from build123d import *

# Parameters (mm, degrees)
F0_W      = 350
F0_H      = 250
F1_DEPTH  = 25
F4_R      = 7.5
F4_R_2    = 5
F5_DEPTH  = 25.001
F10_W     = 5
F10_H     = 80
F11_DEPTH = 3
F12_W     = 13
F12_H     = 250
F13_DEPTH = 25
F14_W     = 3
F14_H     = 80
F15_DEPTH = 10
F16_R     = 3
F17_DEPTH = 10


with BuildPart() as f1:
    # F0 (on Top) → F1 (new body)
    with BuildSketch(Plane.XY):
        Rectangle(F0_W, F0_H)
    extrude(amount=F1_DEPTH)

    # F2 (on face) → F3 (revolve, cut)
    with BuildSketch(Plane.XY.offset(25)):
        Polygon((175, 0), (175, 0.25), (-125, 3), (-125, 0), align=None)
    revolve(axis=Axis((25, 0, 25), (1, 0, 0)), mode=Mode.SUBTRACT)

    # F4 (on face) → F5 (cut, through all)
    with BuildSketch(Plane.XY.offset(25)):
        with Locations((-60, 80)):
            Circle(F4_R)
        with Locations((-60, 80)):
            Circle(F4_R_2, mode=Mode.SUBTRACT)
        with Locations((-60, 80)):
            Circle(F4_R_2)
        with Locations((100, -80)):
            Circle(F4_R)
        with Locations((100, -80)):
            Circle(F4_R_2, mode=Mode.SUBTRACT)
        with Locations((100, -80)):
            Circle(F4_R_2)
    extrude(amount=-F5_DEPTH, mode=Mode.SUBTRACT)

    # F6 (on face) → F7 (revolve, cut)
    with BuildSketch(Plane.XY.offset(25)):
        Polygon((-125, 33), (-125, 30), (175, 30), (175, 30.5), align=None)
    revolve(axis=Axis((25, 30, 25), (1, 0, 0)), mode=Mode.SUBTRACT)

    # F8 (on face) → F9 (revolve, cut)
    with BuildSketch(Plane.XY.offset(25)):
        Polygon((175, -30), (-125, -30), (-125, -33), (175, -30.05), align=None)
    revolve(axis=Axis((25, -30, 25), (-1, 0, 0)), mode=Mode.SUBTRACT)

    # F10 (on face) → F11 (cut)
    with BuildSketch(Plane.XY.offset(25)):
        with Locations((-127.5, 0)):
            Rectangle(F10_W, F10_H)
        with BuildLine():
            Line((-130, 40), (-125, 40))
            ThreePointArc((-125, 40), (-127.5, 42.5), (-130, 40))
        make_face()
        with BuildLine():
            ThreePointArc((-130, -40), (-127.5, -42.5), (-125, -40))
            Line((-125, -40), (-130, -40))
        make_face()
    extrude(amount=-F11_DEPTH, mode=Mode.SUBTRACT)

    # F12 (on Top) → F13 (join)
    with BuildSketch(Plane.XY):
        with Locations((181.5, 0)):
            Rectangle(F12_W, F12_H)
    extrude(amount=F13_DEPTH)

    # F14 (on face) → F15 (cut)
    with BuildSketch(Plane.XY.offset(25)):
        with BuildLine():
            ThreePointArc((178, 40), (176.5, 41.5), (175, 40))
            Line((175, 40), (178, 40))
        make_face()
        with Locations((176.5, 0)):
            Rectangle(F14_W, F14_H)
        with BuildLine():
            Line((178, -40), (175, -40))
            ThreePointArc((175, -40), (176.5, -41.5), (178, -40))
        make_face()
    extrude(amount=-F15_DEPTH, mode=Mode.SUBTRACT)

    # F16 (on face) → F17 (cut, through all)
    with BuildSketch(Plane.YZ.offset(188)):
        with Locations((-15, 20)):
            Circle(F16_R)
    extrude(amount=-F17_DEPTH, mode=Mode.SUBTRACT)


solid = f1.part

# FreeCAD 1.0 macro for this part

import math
import FreeCAD as App
import Part
import Sketcher

V = App.Vector
Q = App.Units.Quantity

doc = App.newDocument("Part")
params = doc.addObject("Spreadsheet::Sheet", "Params")
for row, (alias, value) in enumerate([
    ("sketch1_width", "350 mm"),
    ("sketch1_height", "250 mm"),
    ("pad1_length", "25 mm"),
    ("sketch2_width", "300 mm"),
    ("sketch2_height", "3 mm"),
    ("sketch2_height2", "0.25 mm"),
    ("groove_angle", "360 deg"),
    ("sketch3_diameter", "15 mm"),
    ("sketch4_width", "300 mm"),
    ("sketch4_height", "3 mm"),
    ("sketch4_height2", "0.5 mm"),
    ("groove2_angle", "360 deg"),
    ("sketch5_width", "300 mm"),
    ("sketch5_height", "3 mm"),
    ("sketch5_height2", "0.05 mm"),
    ("groove3_angle", "360 deg"),
    ("sketch6_radius", "2.5 mm"),
    ("sketch6_height", "80 mm"),
    ("pocket2_length", "3 mm"),
    ("sketch7_width", "13 mm"),
    ("sketch7_height", "250 mm"),
    ("pad2_length", "25 mm"),
    ("sketch8_radius", "1.5 mm"),
    ("sketch8_height", "80 mm"),
    ("pocket3_length", "10 mm"),
    ("sketch9_diameter", "6 mm"),
    ("pocket4_length", "10 mm"),
], start=1):
    params.set(f"A{row}", alias)
    params.set(f"B{row}", "=" + value)
    params.setAlias(f"B{row}", alias)

body = doc.addObject("PartDesign::Body", "Body")

sketch1 = body.newObject("Sketcher::SketchObject", "Sketch")
sketch1.AttachmentSupport = (doc.getObject("XY_Plane"), [""])
sketch1.MapMode = "FlatFace"
sketch1.addGeometry(Part.LineSegment(V(-175, 125, 0), V(-175, -125, 0)), False)
sketch1.addGeometry(Part.LineSegment(V(-175, -125, 0), V(175, -125, 0)), False)
sketch1.addGeometry(Part.LineSegment(V(175, -125, 0), V(175, 125, 0)), False)
sketch1.addGeometry(Part.LineSegment(V(175, 125, 0), V(-175, 125, 0)), False)
sketch1.addConstraint(Sketcher.Constraint("Coincident", 0, 2, 1, 1))
sketch1.addConstraint(Sketcher.Constraint("Coincident", 1, 2, 2, 1))
sketch1.addConstraint(Sketcher.Constraint("Coincident", 2, 2, 3, 1))
sketch1.addConstraint(Sketcher.Constraint("Coincident", 3, 2, 0, 1))
sketch1.addConstraint(Sketcher.Constraint("Vertical", 0))
sketch1.addConstraint(Sketcher.Constraint("Horizontal", 1))
sketch1.addConstraint(Sketcher.Constraint("Vertical", 2))
sketch1.addConstraint(Sketcher.Constraint("Horizontal", 3))
sketch1.addConstraint(Sketcher.Constraint("Symmetric", 0, 2, 2, 2, -1, 1))
sketch1.addConstraint(Sketcher.Constraint("DistanceX", 1, 1, 1, 2, Q("350 mm")))
sketch1.addConstraint(Sketcher.Constraint("DistanceY", 0, 2, 0, 1, Q("250 mm")))
sketch1.setExpression("Constraints[9]", "Params.sketch1_width")
sketch1.setExpression("Constraints[10]", "Params.sketch1_height")
pad1 = body.newObject("PartDesign::Pad", "Pad")
pad1.Profile = sketch1
pad1.setExpression("Length", "Params.pad1_length")

sketch2 = body.newObject("Sketcher::SketchObject", "Sketch001")
sketch2.AttachmentSupport = (doc.getObject("XY_Plane"), [""])
sketch2.MapMode = "FlatFace"
sketch2.AttachmentOffset = App.Placement(V(0, 0, 25), App.Rotation())
sketch2.addGeometry(Part.LineSegment(V(175, 0, 0), V(175, 0.25, 0)), False)
sketch2.addGeometry(Part.LineSegment(V(175, 0.25, 0), V(-125, 3, 0)), False)
sketch2.addGeometry(Part.LineSegment(V(-125, 3, 0), V(-125, 0, 0)), False)
sketch2.addGeometry(Part.LineSegment(V(-125, 0, 0), V(175, 0, 0)), False)
sketch2.addConstraint(Sketcher.Constraint("Coincident", 0, 2, 1, 1))
sketch2.addConstraint(Sketcher.Constraint("Coincident", 1, 2, 2, 1))
sketch2.addConstraint(Sketcher.Constraint("Coincident", 2, 2, 3, 1))
sketch2.addConstraint(Sketcher.Constraint("Coincident", 3, 2, 0, 1))
sketch2.addConstraint(Sketcher.Constraint("Vertical", 0))
sketch2.addConstraint(Sketcher.Constraint("Vertical", 2))
sketch2.addConstraint(Sketcher.Constraint("Horizontal", 3))
sketch2.addConstraint(Sketcher.Constraint("PointOnObject", 2, 2, -1))
sketch2.addConstraint(Sketcher.Constraint("DistanceX", 3, 1, 3, 2, Q("300 mm")))
sketch2.addConstraint(Sketcher.Constraint("DistanceY", 2, 2, 2, 1, Q("3 mm")))
sketch2.addConstraint(Sketcher.Constraint("DistanceX", -1, 1, 0, 2, Q("175 mm")))
sketch2.addConstraint(Sketcher.Constraint("DistanceY", 0, 1, 0, 2, Q("0.25 mm")))
sketch2.setExpression("Constraints[8]", "Params.sketch2_width")
sketch2.setExpression("Constraints[9]", "Params.sketch2_height")
sketch2.setExpression("Constraints[11]", "Params.sketch2_height2")
groove = body.newObject("PartDesign::Groove", "Groove")
groove.Profile = sketch2
groove.ReferenceAxis = (sketch2, ["H_Axis"])
groove.setExpression("Angle", "Params.groove_angle")

sketch3 = body.newObject("Sketcher::SketchObject", "Sketch002")
sketch3.AttachmentSupport = (doc.getObject("XY_Plane"), [""])
sketch3.MapMode = "FlatFace"
sketch3.AttachmentOffset = App.Placement(V(0, 0, 25), App.Rotation())
sketch3.addGeometry(Part.Circle(V(-60, 80, 0), V(0, 0, 1), 7.5), False)
sketch3.addGeometry(Part.Circle(V(100, -80, 0), V(0, 0, 1), 7.5), False)
sketch3.addConstraint(Sketcher.Constraint("Equal", 0, 1))
sketch3.addConstraint(Sketcher.Constraint("Diameter", 0, Q("15 mm")))
sketch3.addConstraint(Sketcher.Constraint("DistanceX", 0, 3, -1, 1, Q("60 mm")))
sketch3.addConstraint(Sketcher.Constraint("DistanceY", -1, 1, 0, 3, Q("80 mm")))
sketch3.addConstraint(Sketcher.Constraint("DistanceX", -1, 1, 1, 3, Q("100 mm")))
sketch3.addConstraint(Sketcher.Constraint("DistanceY", 1, 3, -1, 1, Q("80 mm")))
sketch3.setExpression("Constraints[1]", "Params.sketch3_diameter")
pocket1 = body.newObject("PartDesign::Pocket", "Pocket")
pocket1.Profile = sketch3
pocket1.Type = "ThroughAll"

sketch4 = body.newObject("Sketcher::SketchObject", "Sketch003")
sketch4.AttachmentSupport = (doc.getObject("XY_Plane"), [""])
sketch4.MapMode = "FlatFace"
sketch4.AttachmentOffset = App.Placement(V(0, 0, 25), App.Rotation())
sketch4.addGeometry(Part.LineSegment(V(-125, 33, 0), V(-125, 30, 0)), False)
sketch4.addGeometry(Part.LineSegment(V(-125, 30, 0), V(175, 30, 0)), False)
sketch4.addGeometry(Part.LineSegment(V(175, 30, 0), V(175, 30.5, 0)), False)
sketch4.addGeometry(Part.LineSegment(V(175, 30.5, 0), V(-125, 33, 0)), False)
sketch4.addGeometry(Part.LineSegment(V(-125, 30, 0), V(175, 30, 0)), True)
sketch4.addConstraint(Sketcher.Constraint("Coincident", 0, 2, 1, 1))
sketch4.addConstraint(Sketcher.Constraint("Coincident", 1, 2, 2, 1))
sketch4.addConstraint(Sketcher.Constraint("Coincident", 2, 2, 3, 1))
sketch4.addConstraint(Sketcher.Constraint("Coincident", 3, 2, 0, 1))
sketch4.addConstraint(Sketcher.Constraint("Vertical", 0))
sketch4.addConstraint(Sketcher.Constraint("Horizontal", 1))
sketch4.addConstraint(Sketcher.Constraint("Vertical", 2))
sketch4.addConstraint(Sketcher.Constraint("Horizontal", 4))
sketch4.addConstraint(Sketcher.Constraint("Coincident", 4, 1, 0, 2))
sketch4.addConstraint(Sketcher.Constraint("Vertical", 2, 2, 4, 2))
sketch4.addConstraint(Sketcher.Constraint("DistanceX", 1, 1, 1, 2, Q("300 mm")))
sketch4.addConstraint(Sketcher.Constraint("DistanceY", 0, 2, 0, 1, Q("3 mm")))
sketch4.addConstraint(Sketcher.Constraint("DistanceY", 2, 1, 2, 2, Q("0.5 mm")))
sketch4.addConstraint(Sketcher.Constraint("DistanceX", 0, 2, -1, 1, Q("125 mm")))
sketch4.addConstraint(Sketcher.Constraint("DistanceY", -1, 1, 0, 2, Q("30 mm")))
sketch4.setExpression("Constraints[10]", "Params.sketch4_width")
sketch4.setExpression("Constraints[11]", "Params.sketch4_height")
sketch4.setExpression("Constraints[12]", "Params.sketch4_height2")
groove2 = body.newObject("PartDesign::Groove", "Groove001")
groove2.Profile = sketch4
groove2.ReferenceAxis = (sketch4, ["Axis0"])
groove2.setExpression("Angle", "Params.groove2_angle")

sketch5 = body.newObject("Sketcher::SketchObject", "Sketch004")
sketch5.AttachmentSupport = (doc.getObject("XY_Plane"), [""])
sketch5.MapMode = "FlatFace"
sketch5.AttachmentOffset = App.Placement(V(0, 0, 25), App.Rotation())
sketch5.addGeometry(Part.LineSegment(V(175, -30, 0), V(-125, -30, 0)), False)
sketch5.addGeometry(Part.LineSegment(V(-125, -30, 0), V(-125, -33, 0)), False)
sketch5.addGeometry(Part.LineSegment(V(-125, -33, 0), V(175, -30.05, 0)), False)
sketch5.addGeometry(Part.LineSegment(V(175, -30.05, 0), V(175, -30, 0)), False)
sketch5.addGeometry(Part.LineSegment(V(175, -30, 0), V(-125, -30, 0)), True)
sketch5.addConstraint(Sketcher.Constraint("Coincident", 0, 2, 1, 1))
sketch5.addConstraint(Sketcher.Constraint("Coincident", 1, 2, 2, 1))
sketch5.addConstraint(Sketcher.Constraint("Coincident", 2, 2, 3, 1))
sketch5.addConstraint(Sketcher.Constraint("Coincident", 3, 2, 0, 1))
sketch5.addConstraint(Sketcher.Constraint("Horizontal", 0))
sketch5.addConstraint(Sketcher.Constraint("Vertical", 1))
sketch5.addConstraint(Sketcher.Constraint("Vertical", 3))
sketch5.addConstraint(Sketcher.Constraint("Horizontal", 4))
sketch5.addConstraint(Sketcher.Constraint("Coincident", 4, 1, 3, 2))
sketch5.addConstraint(Sketcher.Constraint("Vertical", 1, 2, 4, 2))
sketch5.addConstraint(Sketcher.Constraint("DistanceX", 0, 2, 0, 1, Q("300 mm")))
sketch5.addConstraint(Sketcher.Constraint("DistanceY", 1, 2, 1, 1, Q("3 mm")))
sketch5.addConstraint(Sketcher.Constraint("DistanceX", 0, 2, -1, 1, Q("125 mm")))
sketch5.addConstraint(Sketcher.Constraint("DistanceY", 0, 2, -1, 1, Q("30 mm")))
sketch5.addConstraint(Sketcher.Constraint("DistanceY", 3, 1, 3, 2, Q("0.05 mm")))
sketch5.setExpression("Constraints[10]", "Params.sketch5_width")
sketch5.setExpression("Constraints[11]", "Params.sketch5_height")
sketch5.setExpression("Constraints[14]", "Params.sketch5_height2")
groove3 = body.newObject("PartDesign::Groove", "Groove002")
groove3.Profile = sketch5
groove3.ReferenceAxis = (sketch5, ["Axis0"])
groove3.setExpression("Angle", "Params.groove3_angle")

sketch6 = body.newObject("Sketcher::SketchObject", "Sketch005")
sketch6.AttachmentSupport = (doc.getObject("XY_Plane"), [""])
sketch6.MapMode = "FlatFace"
sketch6.AttachmentOffset = App.Placement(V(0, 0, 25), App.Rotation())
sketch6.addGeometry(Part.LineSegment(V(-130, 40, 0), V(-130, -40, 0)), False)
sketch6.addGeometry(Part.ArcOfCircle(Part.Circle(V(-127.5, -40, 0), V(0, 0, 1), 2.5), math.radians(180), math.radians(360)), False)
sketch6.addGeometry(Part.LineSegment(V(-125, -40, 0), V(-125, 40, 0)), False)
sketch6.addGeometry(Part.ArcOfCircle(Part.Circle(V(-127.5, 40, 0), V(0, 0, 1), 2.5), math.radians(0), math.radians(180)), False)
sketch6.addConstraint(Sketcher.Constraint("Tangent", 0, 2, 1, 1))
sketch6.addConstraint(Sketcher.Constraint("Tangent", 1, 2, 2, 1))
sketch6.addConstraint(Sketcher.Constraint("Tangent", 2, 2, 3, 1))
sketch6.addConstraint(Sketcher.Constraint("Tangent", 3, 2, 0, 1))
sketch6.addConstraint(Sketcher.Constraint("Vertical", 0))
sketch6.addConstraint(Sketcher.Constraint("Vertical", 2))
sketch6.addConstraint(Sketcher.Constraint("Radius", 1, Q("2.5 mm")))
sketch6.addConstraint(Sketcher.Constraint("DistanceY", 0, 2, 0, 1, Q("80 mm")))
sketch6.addConstraint(Sketcher.Constraint("DistanceY", 1, 3, -1, 1, Q("40 mm")))
sketch6.addConstraint(Sketcher.Constraint("DistanceX", 0, 2, -1, 1, Q("130 mm")))
sketch6.setExpression("Constraints[6]", "Params.sketch6_radius")
sketch6.setExpression("Constraints[7]", "Params.sketch6_height")
pocket2 = body.newObject("PartDesign::Pocket", "Pocket001")
pocket2.Profile = sketch6
pocket2.setExpression("Length", "Params.pocket2_length")

sketch7 = body.newObject("Sketcher::SketchObject", "Sketch006")
sketch7.AttachmentSupport = (doc.getObject("XY_Plane"), [""])
sketch7.MapMode = "FlatFace"
sketch7.addGeometry(Part.LineSegment(V(175, 125, 0), V(175, -125, 0)), False)
sketch7.addGeometry(Part.LineSegment(V(175, -125, 0), V(188, -125, 0)), False)
sketch7.addGeometry(Part.LineSegment(V(188, -125, 0), V(188, 125, 0)), False)
sketch7.addGeometry(Part.LineSegment(V(188, 125, 0), V(175, 125, 0)), False)
sketch7.addConstraint(Sketcher.Constraint("Coincident", 0, 2, 1, 1))
sketch7.addConstraint(Sketcher.Constraint("Coincident", 1, 2, 2, 1))
sketch7.addConstraint(Sketcher.Constraint("Coincident", 2, 2, 3, 1))
sketch7.addConstraint(Sketcher.Constraint("Coincident", 3, 2, 0, 1))
sketch7.addConstraint(Sketcher.Constraint("Vertical", 0))
sketch7.addConstraint(Sketcher.Constraint("Horizontal", 1))
sketch7.addConstraint(Sketcher.Constraint("Vertical", 2))
sketch7.addConstraint(Sketcher.Constraint("Horizontal", 3))
sketch7.addConstraint(Sketcher.Constraint("DistanceX", 1, 1, 1, 2, Q("13 mm")))
sketch7.addConstraint(Sketcher.Constraint("DistanceY", 0, 2, 0, 1, Q("250 mm")))
sketch7.addConstraint(Sketcher.Constraint("DistanceX", -1, 1, 0, 2, Q("175 mm")))
sketch7.addConstraint(Sketcher.Constraint("DistanceY", 0, 2, -1, 1, Q("125 mm")))
sketch7.setExpression("Constraints[8]", "Params.sketch7_width")
sketch7.setExpression("Constraints[9]", "Params.sketch7_height")
pad2 = body.newObject("PartDesign::Pad", "Pad001")
pad2.Profile = sketch7
pad2.setExpression("Length", "Params.pad2_length")

sketch8 = body.newObject("Sketcher::SketchObject", "Sketch007")
sketch8.AttachmentSupport = (doc.getObject("XY_Plane"), [""])
sketch8.MapMode = "FlatFace"
sketch8.AttachmentOffset = App.Placement(V(0, 0, 25), App.Rotation())
sketch8.addGeometry(Part.ArcOfCircle(Part.Circle(V(176.5, 40, 0), V(0, 0, 1), 1.5), math.radians(0), math.radians(180)), False)
sketch8.addGeometry(Part.LineSegment(V(175, 40, 0), V(175, -40, 0)), False)
sketch8.addGeometry(Part.ArcOfCircle(Part.Circle(V(176.5, -40, 0), V(0, 0, 1), 1.5), math.radians(180), math.radians(360)), False)
sketch8.addGeometry(Part.LineSegment(V(178, -40, 0), V(178, 40, 0)), False)
sketch8.addConstraint(Sketcher.Constraint("Tangent", 0, 2, 1, 1))
sketch8.addConstraint(Sketcher.Constraint("Tangent", 1, 2, 2, 1))
sketch8.addConstraint(Sketcher.Constraint("Tangent", 2, 2, 3, 1))
sketch8.addConstraint(Sketcher.Constraint("Tangent", 3, 2, 0, 1))
sketch8.addConstraint(Sketcher.Constraint("Vertical", 1))
sketch8.addConstraint(Sketcher.Constraint("Vertical", 3))
sketch8.addConstraint(Sketcher.Constraint("Radius", 0, Q("1.5 mm")))
sketch8.addConstraint(Sketcher.Constraint("DistanceY", 1, 2, 1, 1, Q("80 mm")))
sketch8.addConstraint(Sketcher.Constraint("DistanceY", -1, 1, 0, 3, Q("40 mm")))
sketch8.addConstraint(Sketcher.Constraint("DistanceX", -1, 1, 0, 2, Q("175 mm")))
sketch8.setExpression("Constraints[6]", "Params.sketch8_radius")
sketch8.setExpression("Constraints[7]", "Params.sketch8_height")
pocket3 = body.newObject("PartDesign::Pocket", "Pocket002")
pocket3.Profile = sketch8
pocket3.setExpression("Length", "Params.pocket3_length")

sketch9 = body.newObject("Sketcher::SketchObject", "Sketch008")
sketch9.AttachmentSupport = (doc.getObject("YZ_Plane"), [""])
sketch9.MapMode = "FlatFace"
sketch9.AttachmentOffset = App.Placement(V(0, 0, 188), App.Rotation())
sketch9.addGeometry(Part.Circle(V(-15, 20, 0), V(0, 0, 1), 3), False)
sketch9.addConstraint(Sketcher.Constraint("Diameter", 0, Q("6 mm")))
sketch9.addConstraint(Sketcher.Constraint("DistanceX", 0, 3, -1, 1, Q("15 mm")))
sketch9.addConstraint(Sketcher.Constraint("DistanceY", -1, 1, 0, 3, Q("20 mm")))
sketch9.setExpression("Constraints[0]", "Params.sketch9_diameter")
pocket4 = body.newObject("PartDesign::Pocket", "Pocket003")
pocket4.Profile = sketch9
pocket4.setExpression("Length", "Params.pocket4_length")

doc.recompute()
